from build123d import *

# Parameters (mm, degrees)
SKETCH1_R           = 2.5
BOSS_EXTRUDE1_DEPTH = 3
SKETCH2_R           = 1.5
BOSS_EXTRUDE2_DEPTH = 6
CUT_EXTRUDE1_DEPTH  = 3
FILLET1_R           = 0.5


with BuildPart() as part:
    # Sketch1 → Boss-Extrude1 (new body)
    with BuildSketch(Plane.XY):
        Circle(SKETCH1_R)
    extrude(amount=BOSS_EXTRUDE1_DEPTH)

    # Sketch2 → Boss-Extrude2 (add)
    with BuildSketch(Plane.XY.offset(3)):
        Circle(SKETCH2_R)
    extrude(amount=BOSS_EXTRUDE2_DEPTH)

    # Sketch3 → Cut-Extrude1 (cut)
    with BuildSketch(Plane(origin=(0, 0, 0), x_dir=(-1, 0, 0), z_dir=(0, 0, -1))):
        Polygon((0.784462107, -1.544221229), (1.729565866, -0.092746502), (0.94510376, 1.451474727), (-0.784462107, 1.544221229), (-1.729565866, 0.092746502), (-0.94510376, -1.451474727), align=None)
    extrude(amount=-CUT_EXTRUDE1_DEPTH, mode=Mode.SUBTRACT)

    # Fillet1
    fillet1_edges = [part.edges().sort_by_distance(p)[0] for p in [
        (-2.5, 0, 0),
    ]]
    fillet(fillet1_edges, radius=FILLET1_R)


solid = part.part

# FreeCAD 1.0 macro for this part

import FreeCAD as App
import Part
import Sketcher
from FreeCAD import Vector
Q = App.Units.Quantity


def edges_at(feature, points):
    """Names of the edges that pass closest to the given points."""
    edges = feature.Shape.Edges
    near = lambda p: min(range(len(edges)), key=lambda i: edges[i].distToShape(Part.Vertex(*p))[0])
    return sorted({f"Edge{near(p) + 1}" for p in points})

doc = App.newDocument("Part")
params = doc.addObject("Spreadsheet::Sheet", "Params")
for row, (alias, value) in enumerate([
    ("sketch1_diameter", "5 mm"),
    ("pad1_length", "3 mm"),
    ("sketch2_diameter", "3 mm"),
    ("pad2_length", "6 mm"),
    ("pocket1_length", "3 mm"),
    ("fillet_radius", "0.5 mm"),
], start=1):
    params.set(f"A{row}", alias)
    params.set(f"B{row}", "=" + value)
    params.setAlias(f"B{row}", alias)

body = doc.addObject("PartDesign::Body", "Body")
body.AllowCompound = True

# Sketch on XY plane
sketch1 = body.newObject("Sketcher::SketchObject", "Sketch")
sketch1.AttachmentSupport = (doc.getObject("XY_Plane"), [""])
sketch1.MapMode = "FlatFace"
sketch1.addGeometry(Part.Circle(Vector(0, 0, 0), Vector(0, 0, 1), 2.5), False)
sketch1.addConstraint([
    Sketcher.Constraint("Coincident", 0, 3, -1, 1),
    Sketcher.Constraint("Diameter", 0, Q("5 mm")),
])
sketch1.setExpression("Constraints[1]", "Params.sketch1_diameter")
pad1 = body.newObject("PartDesign::Pad", "Pad")
pad1.Profile = sketch1
pad1.setExpression("Length", "Params.pad1_length")

# Sketch on XY plane
sketch2 = body.newObject("Sketcher::SketchObject", "Sketch001")
sketch2.AttachmentSupport = (doc.getObject("XY_Plane"), [""])
sketch2.MapMode = "FlatFace"
sketch2.AttachmentOffset = App.Placement(Vector(0, 0, 3), App.Rotation())
sketch2.addGeometry(Part.Circle(Vector(0, 0, 0), Vector(0, 0, 1), 1.5), False)
sketch2.addConstraint([
    Sketcher.Constraint("Coincident", 0, 3, -1, 1),
    Sketcher.Constraint("Diameter", 0, Q("3 mm")),
])
sketch2.setExpression("Constraints[1]", "Params.sketch2_diameter")
pad2 = body.newObject("PartDesign::Pad", "Pad001")
pad2.Profile = sketch2
pad2.setExpression("Length", "Params.pad2_length")

# Sketch on XY plane
sketch3 = body.newObject("Sketcher::SketchObject", "Sketch002")
sketch3.AttachmentSupport = (doc.getObject("XY_Plane"), [""])
sketch3.MapMode = "FlatFace"
sketch3.addGeometry([
    Part.LineSegment(Vector(-0.8, -1.5, 0), Vector(-1.7, -0.1, 0)),  # 0
    Part.LineSegment(Vector(-1.7, -0.1, 0), Vector(-0.9, 1.5, 0)),  # 1
    Part.LineSegment(Vector(-0.9, 1.5, 0), Vector(0.8, 1.5, 0)),  # 2
    Part.LineSegment(Vector(0.8, 1.5, 0), Vector(1.7, 0.1, 0)),  # 3
    Part.LineSegment(Vector(1.7, 0.1, 0), Vector(0.9, -1.5, 0)),  # 4
    Part.LineSegment(Vector(0.9, -1.5, 0), Vector(-0.8, -1.5, 0)),  # 5
], False)
sketch3.addConstraint([
    Sketcher.Constraint("Coincident", 0, 2, 1, 1),
    Sketcher.Constraint("Coincident", 1, 2, 2, 1),
    Sketcher.Constraint("Coincident", 2, 2, 3, 1),
    Sketcher.Constraint("Coincident", 3, 2, 4, 1),
    Sketcher.Constraint("Coincident", 4, 2, 5, 1),
    Sketcher.Constraint("Coincident", 5, 2, 0, 1),
    Sketcher.Constraint("Symmetric", 0, 2, 3, 2, -1, 1),
    Sketcher.Constraint("Symmetric", 1, 2, 4, 2, -1, 1),
    Sketcher.Constraint("Symmetric", 2, 2, 5, 2, -1, 1),
    Sketcher.Constraint("Equal", 0, 1),
    Sketcher.Constraint("Equal", 1, 2),
    Sketcher.Constraint("Distance", 0, Q("1.732051 mm")),
    Sketcher.Constraint("DistanceY", -1, 1, 2, 2, Q("1.544221 mm")),
    Sketcher.Constraint("DistanceY", 0, 2, 1, 2, Q("1.544221 mm")),
    Sketcher.Constraint("DistanceX", 1, 2, 3, 2, Q("2.67467 mm")),
])
pocket1 = body.newObject("PartDesign::Pocket", "Pocket")
pocket1.Profile = sketch3
pocket1.setExpression("Length", "Params.pocket1_length")
pocket1.Reversed = True
doc.recompute()

fillet = body.newObject("PartDesign::Fillet", "Fillet")
fillet.Base = (pocket1, edges_at(pocket1, [(-2.5, 0, 0)]))
fillet.setExpression("Radius", "Params.fillet_radius")

doc.recompute()
